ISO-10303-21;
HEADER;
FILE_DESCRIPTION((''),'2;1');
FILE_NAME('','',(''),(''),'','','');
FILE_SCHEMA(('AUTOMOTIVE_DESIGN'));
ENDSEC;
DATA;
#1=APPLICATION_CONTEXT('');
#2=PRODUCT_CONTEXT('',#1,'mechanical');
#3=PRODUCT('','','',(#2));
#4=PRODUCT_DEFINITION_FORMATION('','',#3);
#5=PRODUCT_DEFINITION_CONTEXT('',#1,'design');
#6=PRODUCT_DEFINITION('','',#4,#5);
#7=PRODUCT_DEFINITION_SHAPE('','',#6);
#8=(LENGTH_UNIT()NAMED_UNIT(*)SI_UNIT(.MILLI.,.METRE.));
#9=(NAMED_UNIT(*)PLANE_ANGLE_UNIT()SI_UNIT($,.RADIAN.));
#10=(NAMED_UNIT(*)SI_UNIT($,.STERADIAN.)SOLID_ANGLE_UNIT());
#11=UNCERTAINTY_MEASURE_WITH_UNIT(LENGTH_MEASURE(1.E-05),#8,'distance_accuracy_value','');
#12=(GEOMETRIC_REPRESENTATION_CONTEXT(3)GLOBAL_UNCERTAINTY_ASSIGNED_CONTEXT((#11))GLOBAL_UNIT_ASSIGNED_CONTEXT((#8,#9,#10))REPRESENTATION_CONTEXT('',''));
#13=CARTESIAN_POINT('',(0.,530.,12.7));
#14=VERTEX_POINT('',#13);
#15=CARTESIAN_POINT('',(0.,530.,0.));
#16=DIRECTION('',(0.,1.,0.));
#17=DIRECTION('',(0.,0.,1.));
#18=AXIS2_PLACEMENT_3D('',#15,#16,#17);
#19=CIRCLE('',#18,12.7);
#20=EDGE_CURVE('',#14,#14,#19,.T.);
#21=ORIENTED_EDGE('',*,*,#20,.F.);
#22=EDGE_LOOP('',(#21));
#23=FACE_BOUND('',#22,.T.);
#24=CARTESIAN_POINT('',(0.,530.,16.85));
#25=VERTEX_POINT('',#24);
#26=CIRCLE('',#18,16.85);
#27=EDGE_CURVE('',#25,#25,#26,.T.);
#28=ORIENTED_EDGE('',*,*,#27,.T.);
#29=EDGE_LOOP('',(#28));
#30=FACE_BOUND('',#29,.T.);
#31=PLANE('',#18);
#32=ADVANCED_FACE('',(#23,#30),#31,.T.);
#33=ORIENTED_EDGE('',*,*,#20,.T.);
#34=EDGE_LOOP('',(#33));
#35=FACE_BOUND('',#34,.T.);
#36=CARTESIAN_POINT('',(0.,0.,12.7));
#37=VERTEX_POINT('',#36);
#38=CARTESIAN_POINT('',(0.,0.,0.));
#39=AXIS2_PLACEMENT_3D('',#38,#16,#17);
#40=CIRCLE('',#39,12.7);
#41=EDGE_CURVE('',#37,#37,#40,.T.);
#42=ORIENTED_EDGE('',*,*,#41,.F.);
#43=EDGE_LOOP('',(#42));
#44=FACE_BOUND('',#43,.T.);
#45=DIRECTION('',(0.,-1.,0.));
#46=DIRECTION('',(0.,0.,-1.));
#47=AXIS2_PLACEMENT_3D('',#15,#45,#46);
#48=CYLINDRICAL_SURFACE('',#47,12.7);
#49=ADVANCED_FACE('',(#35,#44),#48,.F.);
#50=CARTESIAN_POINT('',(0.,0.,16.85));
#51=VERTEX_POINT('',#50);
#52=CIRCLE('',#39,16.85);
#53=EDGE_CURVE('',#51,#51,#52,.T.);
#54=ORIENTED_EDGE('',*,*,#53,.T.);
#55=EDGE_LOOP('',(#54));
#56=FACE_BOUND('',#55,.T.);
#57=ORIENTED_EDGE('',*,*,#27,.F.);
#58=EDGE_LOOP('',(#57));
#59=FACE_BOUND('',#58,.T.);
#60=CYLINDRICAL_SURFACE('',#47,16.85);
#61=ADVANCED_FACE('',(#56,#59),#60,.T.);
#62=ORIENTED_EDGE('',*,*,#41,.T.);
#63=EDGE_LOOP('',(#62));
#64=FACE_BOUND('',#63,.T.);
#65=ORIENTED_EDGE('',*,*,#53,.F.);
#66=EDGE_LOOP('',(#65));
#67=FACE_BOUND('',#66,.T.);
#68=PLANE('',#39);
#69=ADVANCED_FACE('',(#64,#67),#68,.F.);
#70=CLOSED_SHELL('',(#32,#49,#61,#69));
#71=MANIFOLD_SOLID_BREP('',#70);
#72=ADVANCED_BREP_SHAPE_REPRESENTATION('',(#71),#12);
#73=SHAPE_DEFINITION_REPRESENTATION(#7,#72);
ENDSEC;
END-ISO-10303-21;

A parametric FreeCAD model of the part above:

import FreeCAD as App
import Part
import Sketcher
from FreeCAD import Vector
Q = App.Units.Quantity

doc = App.newDocument("Part")
body = doc.addObject("PartDesign::Body", "Body")

# Sketch on XZ plane
sketch1 = body.newObject("Sketcher::SketchObject", "Sketch")
sketch1.AttachmentSupport = (doc.getObject("XZ_Plane"), [""])
sketch1.MapMode = "FlatFace"
sketch1.addGeometry(Part.Circle(Vector(0, 0, 0), Vector(0, 0, 1), 17), False)
sketch1.addGeometry(Part.Circle(Vector(0, 0, 0), Vector(0, 0, 1), 13), False)
sketch1.addConstraint(Sketcher.Constraint("Coincident", 0, 3, -1, 1))
sketch1.addConstraint(Sketcher.Constraint("Coincident", 1, 3, -1, 1))
sketch1.addConstraint(Sketcher.Constraint("Diameter", 0, Q("33.7 mm")))
sketch1.addConstraint(Sketcher.Constraint("Diameter", 1, Q("25.4 mm")))
pad1 = body.newObject("PartDesign::Pad", "Pad")
pad1.Profile = sketch1
pad1.Length = 530
pad1.Reversed = True

doc.recompute()
